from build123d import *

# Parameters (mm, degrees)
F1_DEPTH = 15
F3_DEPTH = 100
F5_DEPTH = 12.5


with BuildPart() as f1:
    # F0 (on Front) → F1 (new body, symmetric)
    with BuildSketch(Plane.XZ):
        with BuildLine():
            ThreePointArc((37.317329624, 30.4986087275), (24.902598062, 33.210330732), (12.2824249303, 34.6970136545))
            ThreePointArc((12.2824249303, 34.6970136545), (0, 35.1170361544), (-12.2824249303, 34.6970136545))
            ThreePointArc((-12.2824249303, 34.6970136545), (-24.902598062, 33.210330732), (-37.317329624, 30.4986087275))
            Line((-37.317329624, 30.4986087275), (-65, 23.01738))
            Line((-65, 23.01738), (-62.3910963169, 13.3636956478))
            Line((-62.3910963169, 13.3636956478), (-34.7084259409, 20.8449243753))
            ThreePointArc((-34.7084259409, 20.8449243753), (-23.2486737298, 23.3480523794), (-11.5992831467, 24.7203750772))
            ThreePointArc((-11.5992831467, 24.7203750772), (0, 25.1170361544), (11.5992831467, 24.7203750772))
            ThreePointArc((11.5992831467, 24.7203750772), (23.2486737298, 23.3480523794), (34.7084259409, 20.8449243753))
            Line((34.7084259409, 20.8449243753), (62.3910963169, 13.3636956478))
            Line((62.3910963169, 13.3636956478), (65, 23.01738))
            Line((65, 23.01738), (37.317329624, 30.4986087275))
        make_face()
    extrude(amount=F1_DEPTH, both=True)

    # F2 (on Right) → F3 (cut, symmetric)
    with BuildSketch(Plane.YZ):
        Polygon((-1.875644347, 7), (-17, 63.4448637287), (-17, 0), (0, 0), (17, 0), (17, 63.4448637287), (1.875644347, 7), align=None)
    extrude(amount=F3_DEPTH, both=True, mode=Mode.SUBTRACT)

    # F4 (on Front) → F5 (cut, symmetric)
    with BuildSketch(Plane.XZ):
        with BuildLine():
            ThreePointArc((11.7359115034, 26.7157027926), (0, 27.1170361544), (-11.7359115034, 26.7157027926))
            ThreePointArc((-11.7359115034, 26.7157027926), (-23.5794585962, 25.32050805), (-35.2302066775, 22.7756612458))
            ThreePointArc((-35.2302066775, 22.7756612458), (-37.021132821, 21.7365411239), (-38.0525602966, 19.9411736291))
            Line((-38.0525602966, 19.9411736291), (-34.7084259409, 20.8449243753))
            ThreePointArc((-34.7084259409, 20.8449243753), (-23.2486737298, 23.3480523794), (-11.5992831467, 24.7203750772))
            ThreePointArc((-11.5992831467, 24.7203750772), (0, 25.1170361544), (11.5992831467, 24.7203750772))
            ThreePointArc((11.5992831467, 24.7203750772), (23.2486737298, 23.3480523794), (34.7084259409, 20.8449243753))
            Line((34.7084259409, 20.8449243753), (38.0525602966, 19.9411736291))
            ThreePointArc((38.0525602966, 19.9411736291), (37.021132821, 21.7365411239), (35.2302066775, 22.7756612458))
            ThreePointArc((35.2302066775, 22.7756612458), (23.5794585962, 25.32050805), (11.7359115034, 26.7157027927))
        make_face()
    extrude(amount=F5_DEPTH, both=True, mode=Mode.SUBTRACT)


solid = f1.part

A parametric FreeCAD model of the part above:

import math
import FreeCAD as App
import Part
import Sketcher

V = App.Vector
Q = App.Units.Quantity


def add_polygon(sketch, points):
    """Adds a closed chain of lines whose ends are joined by coincident constraints."""
    first, n = sketch.GeometryCount, len(points)
    for a, b in zip(points, points[1:] + points[:1]):
        sketch.addGeometry(Part.LineSegment(App.Vector(*a, 0), App.Vector(*b, 0)), False)
    for i in range(n):
        sketch.addConstraint(Sketcher.Constraint("Coincident", first + i, 2, first + (i + 1) % n, 1))

doc = App.newDocument("Part")
body = doc.addObject("PartDesign::Body", "Body")

# Sketch on XZ plane
sketch1 = body.newObject("Sketcher::SketchObject", "Sketch")
sketch1.AttachmentSupport = (doc.getObject("XZ_Plane"), [""])
sketch1.MapMode = "FlatFace"
sketch1.addGeometry([
    Part.ArcOfCircle(Part.Circle(V(3.401582, -94.999288, 0), V(0, 0, 1), 130), math.radians(74.8771), math.radians(86.082835)),  # 0
    Part.ArcOfCircle(Part.Circle(V(0, -144.676167, 0), V(0, 0, 1), 179.793203), math.radians(86.082835), math.radians(93.917165)),  # 1
    Part.ArcOfCircle(Part.Circle(V(-3.401582, -94.999288, 0), V(0, 0, 1), 130), math.radians(93.917165), math.radians(105.1229)),  # 2
    Part.LineSegment(V(-37.31733, 30.498609, 0), V(-65, 23.01738, 0)),  # 3
    Part.LineSegment(V(-65, 23.01738, 0), V(-62.391096, 13.363696, 0)),  # 4
    Part.LineSegment(V(-62.391096, 13.363696, 0), V(-34.708426, 20.844924, 0)),  # 5
    Part.ArcOfCircle(Part.Circle(V(-3.401582, -94.999288, 0), V(0, 0, 1), 120), math.radians(93.917165), math.radians(105.1229)),  # 6
    Part.ArcOfCircle(Part.Circle(V(0, -144.676167, 0), V(0, 0, 1), 169.793203), math.radians(86.082835), math.radians(93.917165)),  # 7
    Part.ArcOfCircle(Part.Circle(V(3.401582, -94.999288, 0), V(0, 0, 1), 120), math.radians(74.8771), math.radians(86.082835)),  # 8
    Part.LineSegment(V(34.708426, 20.844924, 0), V(62.391096, 13.363696, 0)),  # 9
    Part.LineSegment(V(62.391096, 13.363696, 0), V(65, 23.01738, 0)),  # 10
    Part.LineSegment(V(65, 23.01738, 0), V(37.31733, 30.498609, 0)),  # 11
], False)
sketch1.addConstraint([
    Sketcher.Constraint("Tangent", 0, 2, 1, 1),
    Sketcher.Constraint("Tangent", 1, 2, 2, 1),
    Sketcher.Constraint("Tangent", 2, 2, 3, 1),
    Sketcher.Constraint("Coincident", 3, 2, 4, 1),
    Sketcher.Constraint("Coincident", 4, 2, 5, 1),
    Sketcher.Constraint("Tangent", 5, 2, 6, 2),
    Sketcher.Constraint("Tangent", 6, 1, 7, 2),
    Sketcher.Constraint("Tangent", 7, 1, 8, 2),
    Sketcher.Constraint("Tangent", 8, 1, 9, 1),
    Sketcher.Constraint("Coincident", 9, 2, 10, 1),
    Sketcher.Constraint("Coincident", 10, 2, 11, 1),
    Sketcher.Constraint("Tangent", 11, 2, 0, 1),
    Sketcher.Constraint("Coincident", 6, 3, 2, 3),
    Sketcher.Constraint("Coincident", 7, 3, 1, 3),
    Sketcher.Constraint("Coincident", 8, 3, 0, 3),
    Sketcher.Constraint("Equal", 0, 2),
    Sketcher.Constraint("Symmetric", 0, 3, 2, 3, -2),
    Sketcher.Constraint("Symmetric", 4, 2, 9, 2, -2),
    Sketcher.Constraint("Symmetric", 3, 2, 10, 2, -2),
    Sketcher.Constraint("Perpendicular", 3, 4),
    Sketcher.Constraint("Perpendicular", 4, 5),
    Sketcher.Constraint("Radius", 0, Q("130 mm")),
    Sketcher.Constraint("Radius", 6, Q("120 mm")),
    Sketcher.Constraint("DistanceX", 3, 2, -1, 1, Q("65 mm")),
    Sketcher.Constraint("Radius", 1, Q("179.793203 mm")),
    Sketcher.Constraint("DistanceX", 5, 2, 1, 2, Q("22.426001 mm")),
    Sketcher.Constraint("DistanceY", 0, 3, 0, 2, Q("129.696301 mm")),
    Sketcher.Constraint("DistanceY", -1, 1, 2, 2, Q("30.498609 mm")),
])
pad1 = body.newObject("PartDesign::Pad", "Pad")
pad1.Profile = sketch1
pad1.Length = 30
pad1.Midplane = True

# Sketch on YZ plane
sketch2 = body.newObject("Sketcher::SketchObject", "Sketch001")
sketch2.AttachmentSupport = (doc.getObject("YZ_Plane"), [""])
sketch2.MapMode = "FlatFace"
add_polygon(sketch2, [(-1.875644, 7), (-17, 63.444864), (-17, 0), (17, 0), (17, 63.444864), (1.875644, 7)])  # lines 0-5
sketch2.addConstraint([
    Sketcher.Constraint("Vertical", 1),
    Sketcher.Constraint("Horizontal", 2),
    Sketcher.Constraint("Vertical", 3),
    Sketcher.Constraint("Horizontal", 5),
    Sketcher.Constraint("Symmetric", 1, 2, 2, 2, -1, 1),
    Sketcher.Constraint("Horizontal", 0, 2, 3, 2),
    Sketcher.Constraint("Equal", 0, 4),
    Sketcher.Constraint("DistanceX", 2, 1, 2, 2, Q("34 mm")),
    Sketcher.Constraint("Angle", 0, Q("105 deg")),
    Sketcher.Constraint("DistanceY", -1, 1, 4, 2, Q("7 mm")),
    Sketcher.Constraint("DistanceX", 5, 2, 5, 1, Q("3.751289 mm")),
])
pocket1 = body.newObject("PartDesign::Pocket", "Pocket")
pocket1.Profile = sketch2
pocket1.Length = 200
pocket1.Midplane = True

# Sketch on XZ plane
sketch3 = body.newObject("Sketcher::SketchObject", "Sketch002")
sketch3.AttachmentSupport = (doc.getObject("XZ_Plane"), [""])
sketch3.MapMode = "FlatFace"
sketch3.addGeometry([
    Part.ArcOfCircle(Part.Circle(V(0, -144.676167, 0), V(0, 0, 1), 171.793203), math.radians(86.082835), math.radians(93.917165)),  # 0
    Part.ArcOfCircle(Part.Circle(V(-3.401582, -94.999288, 0), V(0, 0, 1), 122), math.radians(93.917165), math.radians(105.1229)),  # 1
    Part.ArcOfCircle(Part.Circle(V(-34.186645, 18.914188, 0), V(0, 0, 1), 4), math.radians(105.1229), math.radians(165.1229)),  # 2
    Part.LineSegment(V(-38.05256, 19.941174, 0), V(-34.708426, 20.844924, 0)),  # 3
    Part.ArcOfCircle(Part.Circle(V(-3.401582, -94.999288, 0), V(0, 0, 1), 120), math.radians(93.917165), math.radians(105.1229)),  # 4
    Part.ArcOfCircle(Part.Circle(V(0, -144.676167, 0), V(0, 0, 1), 169.793203), math.radians(86.082835), math.radians(93.917165)),  # 5
    Part.ArcOfCircle(Part.Circle(V(3.401582, -94.999288, 0), V(0, 0, 1), 120), math.radians(74.8771), math.radians(86.082835)),  # 6
    Part.LineSegment(V(34.708426, 20.844924, 0), V(38.05256, 19.941174, 0)),  # 7
    Part.ArcOfCircle(Part.Circle(V(34.186645, 18.914188, 0), V(0, 0, 1), 4), math.radians(14.8771), math.radians(74.8771)),  # 8
    Part.ArcOfCircle(Part.Circle(V(3.401582, -94.999288, 0), V(0, 0, 1), 122), math.radians(74.8771), math.radians(86.082835)),  # 9
], False)
sketch3.addConstraint([
    Sketcher.Constraint("Tangent", 0, 2, 1, 1),
    Sketcher.Constraint("Tangent", 1, 2, 2, 1),
    Sketcher.Constraint("Coincident", 2, 2, 3, 1),
    Sketcher.Constraint("Tangent", 3, 2, 4, 2),
    Sketcher.Constraint("Tangent", 4, 1, 5, 2),
    Sketcher.Constraint("Tangent", 5, 1, 6, 2),
    Sketcher.Constraint("Tangent", 6, 1, 7, 1),
    Sketcher.Constraint("Coincident", 7, 2, 8, 1),
    Sketcher.Constraint("Tangent", 8, 2, 9, 1),
    Sketcher.Constraint("Tangent", 9, 2, 0, 1),
    Sketcher.Constraint("Coincident", 4, 3, 1, 3),
    Sketcher.Constraint("Coincident", 5, 3, 0, 3),
    Sketcher.Constraint("Coincident", 9, 3, 6, 3),
    Sketcher.Constraint("Equal", 4, 6),
    Sketcher.Constraint("Equal", 2, 8),
    Sketcher.Constraint("Symmetric", 1, 3, 6, 3, -2),
    Sketcher.Constraint("Symmetric", 2, 2, 7, 2, -2),
    Sketcher.Constraint("Radius", 1, Q("122 mm")),
    Sketcher.Constraint("Radius", 2, Q("4 mm")),
    Sketcher.Constraint("Radius", 4, Q("120 mm")),
    Sketcher.Constraint("Radius", 0, Q("171.793203 mm")),
    Sketcher.Constraint("Distance", 3, Q("3.464102 mm")),
    Sketcher.Constraint("DistanceY", 2, 2, 4, 1, Q("4.779201 mm")),
    Sketcher.Constraint("DistanceX", 1, 3, -1, 1, Q("3.401582 mm")),
    Sketcher.Constraint("DistanceY", -1, 1, 1, 2, Q("22.775661 mm")),
])
pocket2 = body.newObject("PartDesign::Pocket", "Pocket001")
pocket2.Profile = sketch3
pocket2.Length = 25
pocket2.Midplane = True

doc.recompute()
